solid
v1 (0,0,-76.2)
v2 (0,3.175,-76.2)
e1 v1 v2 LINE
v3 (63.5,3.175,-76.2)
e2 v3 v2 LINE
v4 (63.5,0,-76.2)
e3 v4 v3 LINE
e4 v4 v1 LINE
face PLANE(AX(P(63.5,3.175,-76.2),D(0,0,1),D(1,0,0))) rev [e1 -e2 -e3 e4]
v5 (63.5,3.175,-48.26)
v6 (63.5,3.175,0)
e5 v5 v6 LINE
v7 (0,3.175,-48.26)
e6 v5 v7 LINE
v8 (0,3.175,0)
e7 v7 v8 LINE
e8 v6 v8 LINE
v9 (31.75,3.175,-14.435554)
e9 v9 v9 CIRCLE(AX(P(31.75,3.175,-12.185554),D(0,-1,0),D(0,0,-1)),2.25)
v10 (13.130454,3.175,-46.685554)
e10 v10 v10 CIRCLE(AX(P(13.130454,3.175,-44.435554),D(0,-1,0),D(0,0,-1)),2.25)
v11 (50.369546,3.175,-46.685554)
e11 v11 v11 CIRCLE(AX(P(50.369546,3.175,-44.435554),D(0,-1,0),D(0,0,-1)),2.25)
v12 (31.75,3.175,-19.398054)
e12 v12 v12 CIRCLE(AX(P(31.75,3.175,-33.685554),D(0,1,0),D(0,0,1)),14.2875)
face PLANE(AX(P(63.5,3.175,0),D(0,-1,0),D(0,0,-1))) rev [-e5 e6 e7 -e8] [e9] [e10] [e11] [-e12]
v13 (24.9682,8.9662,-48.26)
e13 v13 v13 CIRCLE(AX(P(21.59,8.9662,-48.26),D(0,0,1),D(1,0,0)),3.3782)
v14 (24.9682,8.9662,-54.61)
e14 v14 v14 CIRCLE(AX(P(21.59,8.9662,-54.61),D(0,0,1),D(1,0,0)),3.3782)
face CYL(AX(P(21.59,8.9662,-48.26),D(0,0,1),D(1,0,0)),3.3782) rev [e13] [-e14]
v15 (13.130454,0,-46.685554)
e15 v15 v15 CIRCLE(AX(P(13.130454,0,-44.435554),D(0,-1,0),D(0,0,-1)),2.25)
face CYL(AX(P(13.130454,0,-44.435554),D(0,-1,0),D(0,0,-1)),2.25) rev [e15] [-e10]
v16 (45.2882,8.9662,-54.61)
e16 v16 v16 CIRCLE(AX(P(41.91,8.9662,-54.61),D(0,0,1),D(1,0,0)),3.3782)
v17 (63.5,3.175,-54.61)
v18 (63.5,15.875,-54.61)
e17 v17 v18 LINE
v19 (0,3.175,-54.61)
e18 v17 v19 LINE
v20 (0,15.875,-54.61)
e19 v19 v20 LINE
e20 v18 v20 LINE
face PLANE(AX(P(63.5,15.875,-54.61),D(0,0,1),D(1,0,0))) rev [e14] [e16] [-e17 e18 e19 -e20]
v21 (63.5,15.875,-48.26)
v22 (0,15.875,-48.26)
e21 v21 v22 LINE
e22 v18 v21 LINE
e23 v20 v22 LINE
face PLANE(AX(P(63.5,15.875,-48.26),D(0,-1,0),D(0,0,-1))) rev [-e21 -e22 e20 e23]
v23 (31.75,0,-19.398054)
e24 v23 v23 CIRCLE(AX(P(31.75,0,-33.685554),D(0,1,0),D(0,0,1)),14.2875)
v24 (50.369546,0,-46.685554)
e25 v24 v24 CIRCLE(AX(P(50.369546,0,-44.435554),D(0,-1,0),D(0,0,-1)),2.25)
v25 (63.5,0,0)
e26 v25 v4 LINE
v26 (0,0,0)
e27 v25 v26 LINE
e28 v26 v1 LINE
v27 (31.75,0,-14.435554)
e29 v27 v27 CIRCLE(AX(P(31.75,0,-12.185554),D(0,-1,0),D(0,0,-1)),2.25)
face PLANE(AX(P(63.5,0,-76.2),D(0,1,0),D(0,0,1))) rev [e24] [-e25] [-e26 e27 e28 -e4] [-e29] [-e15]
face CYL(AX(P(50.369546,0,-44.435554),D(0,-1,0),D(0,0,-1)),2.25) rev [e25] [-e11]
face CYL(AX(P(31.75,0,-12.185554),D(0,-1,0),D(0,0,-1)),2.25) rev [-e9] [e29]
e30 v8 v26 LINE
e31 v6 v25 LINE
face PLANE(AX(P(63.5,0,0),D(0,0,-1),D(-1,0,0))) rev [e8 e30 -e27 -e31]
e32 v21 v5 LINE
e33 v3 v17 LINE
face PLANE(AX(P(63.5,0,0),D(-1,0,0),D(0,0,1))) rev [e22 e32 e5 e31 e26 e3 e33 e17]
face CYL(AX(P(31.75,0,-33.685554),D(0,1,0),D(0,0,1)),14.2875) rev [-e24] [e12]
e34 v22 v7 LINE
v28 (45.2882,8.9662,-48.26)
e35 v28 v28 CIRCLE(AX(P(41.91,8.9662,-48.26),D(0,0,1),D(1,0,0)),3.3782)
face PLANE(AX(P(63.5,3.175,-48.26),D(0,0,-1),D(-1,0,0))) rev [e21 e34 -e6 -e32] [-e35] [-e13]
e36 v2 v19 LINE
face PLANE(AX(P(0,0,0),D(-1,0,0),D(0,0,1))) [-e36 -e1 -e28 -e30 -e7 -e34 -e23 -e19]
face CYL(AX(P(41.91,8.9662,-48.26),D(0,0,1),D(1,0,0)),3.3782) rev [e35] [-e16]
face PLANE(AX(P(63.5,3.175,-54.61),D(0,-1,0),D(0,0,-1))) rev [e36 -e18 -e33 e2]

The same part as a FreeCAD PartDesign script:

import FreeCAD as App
import Part
import Sketcher
Q = App.Units.Quantity


def add_polygon(sketch, points):
    """Adds a closed chain of lines whose ends are joined by coincident constraints."""
    first, n = sketch.GeometryCount, len(points)
    for a, b in zip(points, points[1:] + points[:1]):
        sketch.addGeometry(Part.LineSegment(App.Vector(*a, 0), App.Vector(*b, 0)), False)
    for i in range(n):
        sketch.addConstraint(Sketcher.Constraint("Coincident", first + i, 2, first + (i + 1) % n, 1))

doc = App.newDocument("Part")
params = doc.addObject("Spreadsheet::Sheet", "Params")
for row, (alias, value) in enumerate([
    ("sketch1_height", "3 in"),
    ("sketch1_width", "0.5 in"),
    ("sketch1_height2", "1.9 in"),
    ("sketch1_height3", "0.85 in"),
    ("sketch1_width2", "0.125 in"),
    ("pad1_length", "2.5 in"),
    ("sketch2_diameter", "1.125 in"),
    ("hole_diameter", "4.5 mm"),
    ("sketch4_diameter", "0.266 in"),
    ("hole2_diameter", "0.266 in"),
], start=1):
    params.set(f"A{row}", alias)
    params.set(f"B{row}", "=" + value)
    params.setAlias(f"B{row}", alias)

body = doc.addObject("PartDesign::Body", "Body")

sketch1 = body.newObject("Sketcher::SketchObject", "Sketch")
sketch1.AttachmentSupport = (doc.getObject("YZ_Plane"), [""])
sketch1.MapMode = "FlatFace"
add_polygon(sketch1, [(3.2, 0), (0, 0), (0, -76.2), (3.2, -76.2), (3.2, -54.6), (15.9, -54.6), (15.9, -48.3), (3.2, -48.3)])
sketch1.addConstraint([
    Sketcher.Constraint("Horizontal", 0),
    Sketcher.Constraint("Vertical", 1),
    Sketcher.Constraint("Horizontal", 2),
    Sketcher.Constraint("Vertical", 3),
    Sketcher.Constraint("Horizontal", 4),
    Sketcher.Constraint("Vertical", 5),
    Sketcher.Constraint("Horizontal", 6),
    Sketcher.Constraint("Vertical", 7),
    Sketcher.Constraint("Coincident", 0, 2, -1, 1),
    Sketcher.Constraint("Vertical", 3, 2, 6, 2),
    Sketcher.Constraint("DistanceY", 1, 2, 1, 1, Q("3 in")),
    Sketcher.Constraint("DistanceX", 4, 1, 4, 2, Q("0.5 in")),
    Sketcher.Constraint("DistanceY", 7, 1, 7, 2, Q("1.9 in")),
    Sketcher.Constraint("DistanceY", 3, 1, 3, 2, Q("0.85 in")),
    Sketcher.Constraint("DistanceX", 0, 2, 0, 1, Q("0.125 in")),
])
sketch1.setExpression("Constraints[18]", "Params.sketch1_height")
sketch1.setExpression("Constraints[19]", "Params.sketch1_width")
sketch1.setExpression("Constraints[20]", "Params.sketch1_height2")
sketch1.setExpression("Constraints[21]", "Params.sketch1_height3")
sketch1.setExpression("Constraints[22]", "Params.sketch1_width2")
pad1 = body.newObject("PartDesign::Pad", "Pad")
pad1.Profile = sketch1
pad1.setExpression("Length", "Params.pad1_length")

sketch2 = body.newObject("Sketcher::SketchObject", "Sketch001")
sketch2.AttachmentSupport = (doc.getObject("XZ_Plane"), [""])
sketch2.MapMode = "FlatFace"
sketch2.AttachmentOffset = App.Placement(App.Vector(0, 0, -0.125 * 25.4), App.Rotation())
sketch2.addGeometry(Part.Circle(App.Vector(32, -34, 0), App.Vector(0, 0, 1), 14), False)
sketch2.addConstraint([
    Sketcher.Constraint("Diameter", 0, Q("1.125 in")),
    Sketcher.Constraint("DistanceX", -1, 1, 0, 3, Q("1.25 in")),
    Sketcher.Constraint("DistanceY", 0, 3, -1, 1, Q("33.685554 mm")),
])
sketch2.setExpression("Constraints[0]", "Params.sketch2_diameter")
pocket1 = body.newObject("PartDesign::Pocket", "Pocket")
pocket1.Profile = sketch2
pocket1.Type = "ThroughAll"
pocket1.Reversed = True

sketch3 = body.newObject("Sketcher::SketchObject", "Sketch002")
sketch3.AttachmentSupport = (doc.getObject("XZ_Plane"), [""])
sketch3.MapMode = "FlatFace"
sketch3.addGeometry([
    Part.Circle(App.Vector(31.8, -12.2, 0), App.Vector(0, 0, 1), 2.2),
    Part.Circle(App.Vector(50.4, -44.4, 0), App.Vector(0, 0, 1), 2.2),
    Part.Circle(App.Vector(13.1, -44.4, 0), App.Vector(0, 0, 1), 2.2),
], False)
sketch3.addConstraint([
    Sketcher.Constraint("Equal", 0, 1),
    Sketcher.Constraint("Equal", 1, 2),
    Sketcher.Constraint("Horizontal", 1, 3, 2, 3),
    Sketcher.Constraint("Diameter", 0, Q("4.5 mm")),
    Sketcher.Constraint("DistanceX", -1, 1, 0, 3, Q("1.25 in")),
    Sketcher.Constraint("DistanceY", 1, 3, 0, 3, Q("32.25 mm")),
    Sketcher.Constraint("DistanceY", 0, 3, -1, 1, Q("12.185554 mm")),
    Sketcher.Constraint("DistanceX", -1, 1, 1, 3, Q("50.369546 mm")),
    Sketcher.Constraint("DistanceX", -1, 1, 2, 3, Q("13.130454 mm")),
])
doc.recompute()
hole = body.newObject("PartDesign::Hole", "Hole")
hole.Profile = sketch3
hole.ThreadType = "None"
hole.setExpression("Diameter", "Params.hole_diameter")
hole.DepthType = "ThroughAll"

sketch4 = body.newObject("Sketcher::SketchObject", "Sketch003")
sketch4.AttachmentSupport = (doc.getObject("XY_Plane"), [""])
sketch4.MapMode = "FlatFace"
sketch4.AttachmentOffset = App.Placement(App.Vector(0, 0, -1.9 * 25.4), App.Rotation())
sketch4.addGeometry([
    Part.Circle(App.Vector(41.9, 9, 0), App.Vector(0, 0, 1), 3.4),
    Part.Circle(App.Vector(21.6, 9, 0), App.Vector(0, 0, 1), 3.4),
], False)
sketch4.addConstraint([
    Sketcher.Constraint("Equal", 0, 1),
    Sketcher.Constraint("Horizontal", 0, 3, 1, 3),
    Sketcher.Constraint("Diameter", 0, Q("0.266 in")),
    Sketcher.Constraint("DistanceX", 1, 3, 0, 3, Q("0.8 in")),
    Sketcher.Constraint("DistanceX", -1, 1, 0, 3, Q("1.65 in")),
    Sketcher.Constraint("DistanceY", -1, 1, 0, 3, Q("0.353 in")),
])
sketch4.setExpression("Constraints[2]", "Params.sketch4_diameter")
doc.recompute()
hole2 = body.newObject("PartDesign::Hole", "Hole001")
hole2.Profile = sketch4
hole2.ThreadType = "None"
hole2.setExpression("Diameter", "Params.hole2_diameter")
hole2.DepthType = "ThroughAll"

doc.recompute()
